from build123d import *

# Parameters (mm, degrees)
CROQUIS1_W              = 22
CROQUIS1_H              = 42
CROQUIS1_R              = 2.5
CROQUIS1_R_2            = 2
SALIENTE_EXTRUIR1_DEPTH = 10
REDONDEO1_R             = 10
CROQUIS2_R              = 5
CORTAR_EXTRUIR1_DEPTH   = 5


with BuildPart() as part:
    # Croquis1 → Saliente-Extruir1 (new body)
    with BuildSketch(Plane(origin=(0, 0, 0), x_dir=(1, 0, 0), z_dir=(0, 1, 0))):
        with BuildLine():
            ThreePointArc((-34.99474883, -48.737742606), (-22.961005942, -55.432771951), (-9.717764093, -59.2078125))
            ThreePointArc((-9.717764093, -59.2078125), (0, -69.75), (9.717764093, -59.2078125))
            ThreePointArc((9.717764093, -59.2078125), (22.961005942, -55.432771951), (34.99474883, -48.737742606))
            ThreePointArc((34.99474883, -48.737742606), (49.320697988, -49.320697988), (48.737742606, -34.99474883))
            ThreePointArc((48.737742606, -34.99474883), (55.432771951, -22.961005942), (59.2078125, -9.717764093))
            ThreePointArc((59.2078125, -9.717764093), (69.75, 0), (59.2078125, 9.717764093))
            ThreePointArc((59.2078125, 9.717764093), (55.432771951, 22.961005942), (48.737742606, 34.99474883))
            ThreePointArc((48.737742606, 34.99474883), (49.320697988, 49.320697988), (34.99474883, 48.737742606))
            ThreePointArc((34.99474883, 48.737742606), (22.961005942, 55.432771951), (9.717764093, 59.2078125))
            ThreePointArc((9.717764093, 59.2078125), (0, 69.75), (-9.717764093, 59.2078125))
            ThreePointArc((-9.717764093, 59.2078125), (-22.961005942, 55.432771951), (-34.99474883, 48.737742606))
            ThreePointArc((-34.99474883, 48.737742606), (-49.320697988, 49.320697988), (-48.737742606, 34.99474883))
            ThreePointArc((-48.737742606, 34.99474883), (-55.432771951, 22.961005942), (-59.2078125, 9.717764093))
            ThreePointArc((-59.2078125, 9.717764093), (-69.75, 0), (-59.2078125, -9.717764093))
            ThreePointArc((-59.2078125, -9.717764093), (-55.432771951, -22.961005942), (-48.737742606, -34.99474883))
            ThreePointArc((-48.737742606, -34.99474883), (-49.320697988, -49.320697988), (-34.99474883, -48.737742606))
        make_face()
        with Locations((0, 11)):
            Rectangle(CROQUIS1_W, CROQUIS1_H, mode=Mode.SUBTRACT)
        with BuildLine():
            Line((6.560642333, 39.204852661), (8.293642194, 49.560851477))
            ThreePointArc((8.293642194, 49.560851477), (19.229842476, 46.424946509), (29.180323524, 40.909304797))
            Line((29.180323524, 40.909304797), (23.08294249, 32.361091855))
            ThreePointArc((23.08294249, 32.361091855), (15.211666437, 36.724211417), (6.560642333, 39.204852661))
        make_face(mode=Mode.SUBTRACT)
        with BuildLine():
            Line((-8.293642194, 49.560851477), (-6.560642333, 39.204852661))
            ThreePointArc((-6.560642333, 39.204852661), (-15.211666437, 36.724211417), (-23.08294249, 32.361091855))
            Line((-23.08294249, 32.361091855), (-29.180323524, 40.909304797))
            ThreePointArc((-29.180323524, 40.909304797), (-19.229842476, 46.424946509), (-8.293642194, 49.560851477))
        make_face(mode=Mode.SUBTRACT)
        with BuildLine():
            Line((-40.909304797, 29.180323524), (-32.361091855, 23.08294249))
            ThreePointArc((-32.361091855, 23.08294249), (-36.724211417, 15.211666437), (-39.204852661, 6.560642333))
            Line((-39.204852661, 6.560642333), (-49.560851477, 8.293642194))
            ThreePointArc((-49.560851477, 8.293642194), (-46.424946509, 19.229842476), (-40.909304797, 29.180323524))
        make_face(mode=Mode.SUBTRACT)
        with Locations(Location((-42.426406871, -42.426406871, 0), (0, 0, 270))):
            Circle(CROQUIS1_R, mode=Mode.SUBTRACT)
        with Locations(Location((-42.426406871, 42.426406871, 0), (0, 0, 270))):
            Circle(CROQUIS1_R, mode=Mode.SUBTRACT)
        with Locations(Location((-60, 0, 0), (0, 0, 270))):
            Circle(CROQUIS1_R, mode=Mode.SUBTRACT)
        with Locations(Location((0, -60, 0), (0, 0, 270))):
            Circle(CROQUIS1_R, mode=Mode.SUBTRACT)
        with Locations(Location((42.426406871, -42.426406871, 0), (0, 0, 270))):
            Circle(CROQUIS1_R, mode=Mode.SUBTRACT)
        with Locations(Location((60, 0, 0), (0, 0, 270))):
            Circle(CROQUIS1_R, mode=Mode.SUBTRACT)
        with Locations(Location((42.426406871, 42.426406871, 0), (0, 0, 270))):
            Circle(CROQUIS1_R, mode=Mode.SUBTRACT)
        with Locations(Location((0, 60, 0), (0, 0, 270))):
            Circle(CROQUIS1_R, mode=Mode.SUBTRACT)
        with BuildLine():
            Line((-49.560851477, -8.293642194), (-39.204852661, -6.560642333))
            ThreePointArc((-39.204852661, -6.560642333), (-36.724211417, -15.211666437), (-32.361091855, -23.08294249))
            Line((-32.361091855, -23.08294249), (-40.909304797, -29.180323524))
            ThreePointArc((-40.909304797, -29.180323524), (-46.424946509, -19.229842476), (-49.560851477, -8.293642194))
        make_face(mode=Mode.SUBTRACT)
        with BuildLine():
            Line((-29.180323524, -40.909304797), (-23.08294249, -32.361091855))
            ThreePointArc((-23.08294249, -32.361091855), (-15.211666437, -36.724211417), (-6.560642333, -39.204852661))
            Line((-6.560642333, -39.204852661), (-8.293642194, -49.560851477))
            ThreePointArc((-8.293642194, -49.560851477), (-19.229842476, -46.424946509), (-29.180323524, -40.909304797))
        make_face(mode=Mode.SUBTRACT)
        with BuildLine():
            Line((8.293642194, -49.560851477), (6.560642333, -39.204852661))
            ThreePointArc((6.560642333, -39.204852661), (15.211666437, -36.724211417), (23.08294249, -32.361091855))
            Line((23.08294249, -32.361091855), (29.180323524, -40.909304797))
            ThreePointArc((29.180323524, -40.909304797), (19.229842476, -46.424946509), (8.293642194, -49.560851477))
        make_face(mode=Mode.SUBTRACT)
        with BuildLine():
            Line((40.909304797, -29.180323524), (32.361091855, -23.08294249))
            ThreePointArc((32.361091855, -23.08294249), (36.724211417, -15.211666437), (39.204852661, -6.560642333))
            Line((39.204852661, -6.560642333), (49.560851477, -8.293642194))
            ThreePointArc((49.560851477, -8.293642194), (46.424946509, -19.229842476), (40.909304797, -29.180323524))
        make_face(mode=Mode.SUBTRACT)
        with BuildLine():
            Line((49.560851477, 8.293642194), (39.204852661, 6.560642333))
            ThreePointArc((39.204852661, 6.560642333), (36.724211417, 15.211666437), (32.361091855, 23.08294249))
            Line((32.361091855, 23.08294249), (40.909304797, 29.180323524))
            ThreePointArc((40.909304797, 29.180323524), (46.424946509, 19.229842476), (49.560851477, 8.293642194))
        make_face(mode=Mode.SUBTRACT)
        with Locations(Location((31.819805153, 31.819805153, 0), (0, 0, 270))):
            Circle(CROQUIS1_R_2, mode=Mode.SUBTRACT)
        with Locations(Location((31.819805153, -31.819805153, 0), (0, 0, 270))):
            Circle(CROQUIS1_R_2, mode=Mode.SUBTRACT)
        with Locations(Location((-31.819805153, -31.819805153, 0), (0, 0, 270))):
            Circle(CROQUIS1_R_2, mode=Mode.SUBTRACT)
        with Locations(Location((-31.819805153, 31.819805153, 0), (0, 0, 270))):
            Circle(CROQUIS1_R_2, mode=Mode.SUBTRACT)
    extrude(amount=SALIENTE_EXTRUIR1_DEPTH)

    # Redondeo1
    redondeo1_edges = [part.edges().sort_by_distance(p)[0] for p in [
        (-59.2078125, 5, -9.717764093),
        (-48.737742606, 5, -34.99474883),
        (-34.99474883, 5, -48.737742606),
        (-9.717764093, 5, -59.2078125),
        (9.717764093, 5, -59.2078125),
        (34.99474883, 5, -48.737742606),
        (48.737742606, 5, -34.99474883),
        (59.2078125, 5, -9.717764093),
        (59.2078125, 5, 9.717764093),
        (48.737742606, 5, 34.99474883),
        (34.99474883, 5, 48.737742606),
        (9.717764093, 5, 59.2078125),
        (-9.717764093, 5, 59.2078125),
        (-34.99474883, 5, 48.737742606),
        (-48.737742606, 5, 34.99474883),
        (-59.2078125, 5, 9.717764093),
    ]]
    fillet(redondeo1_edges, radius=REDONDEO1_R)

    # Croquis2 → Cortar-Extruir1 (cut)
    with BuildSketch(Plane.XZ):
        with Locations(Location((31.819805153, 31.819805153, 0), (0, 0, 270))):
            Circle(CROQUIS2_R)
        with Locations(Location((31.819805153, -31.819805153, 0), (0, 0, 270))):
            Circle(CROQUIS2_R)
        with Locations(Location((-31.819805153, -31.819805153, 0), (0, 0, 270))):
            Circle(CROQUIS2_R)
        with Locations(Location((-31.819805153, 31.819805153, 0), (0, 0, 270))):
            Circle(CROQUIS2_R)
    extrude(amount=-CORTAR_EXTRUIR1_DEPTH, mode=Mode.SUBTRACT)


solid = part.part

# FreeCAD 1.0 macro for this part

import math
import FreeCAD as App
import Part
import Sketcher
Q = App.Units.Quantity


def edges_at(feature, points):
    """Names of the edges that pass closest to the given points."""
    edges = feature.Shape.Edges
    near = lambda p: min(range(len(edges)), key=lambda i: edges[i].distToShape(Part.Vertex(*p))[0])
    return sorted({f"Edge{near(p) + 1}" for p in points})

doc = App.newDocument("Part")
body = doc.addObject("PartDesign::Body", "Body")

# Sketch on XZ plane
sketch1 = body.newObject("Sketcher::SketchObject", "Sketch")
sketch1.AttachmentSupport = (doc.getObject("XZ_Plane"), [""])
sketch1.MapMode = "FlatFace"
sketch1.addGeometry([
    Part.ArcOfCircle(Part.Circle(App.Vector(0, 0, 0), App.Vector(0, 0, 1), 60), math.radians(99), math.radians(126)),  # 0
    Part.ArcOfCircle(Part.Circle(App.Vector(0, 60, 0), App.Vector(0, 0, 1), 9.8), math.radians(-5), math.radians(185)),  # 1
    Part.ArcOfCircle(Part.Circle(App.Vector(0, 0, 0), App.Vector(0, 0, 1), 60), math.radians(54), math.radians(81)),  # 2
    Part.ArcOfCircle(Part.Circle(App.Vector(42.4, 42.4, 0), App.Vector(0, 0, 1), 9.8), math.radians(-50), math.radians(140)),  # 3
    Part.ArcOfCircle(Part.Circle(App.Vector(0, 0, 0), App.Vector(0, 0, 1), 60), math.radians(9), math.radians(36)),  # 4
    Part.ArcOfCircle(Part.Circle(App.Vector(60, 0, 0), App.Vector(0, 0, 1), 9.8), math.radians(-95), math.radians(95)),  # 5
    Part.ArcOfCircle(Part.Circle(App.Vector(0, 0, 0), App.Vector(0, 0, 1), 60), math.radians(-36), math.radians(-9)),  # 6
    Part.ArcOfCircle(Part.Circle(App.Vector(42.4, -42.4, 0), App.Vector(0, 0, 1), 9.8), math.radians(-140), math.radians(50)),  # 7
    Part.ArcOfCircle(Part.Circle(App.Vector(0, 0, 0), App.Vector(0, 0, 1), 60), math.radians(-81), math.radians(-54)),  # 8
    Part.ArcOfCircle(Part.Circle(App.Vector(0, -60, 0), App.Vector(0, 0, 1), 9.8), math.radians(175), math.radians(365)),  # 9
    Part.ArcOfCircle(Part.Circle(App.Vector(0, 0, 0), App.Vector(0, 0, 1), 60), math.radians(-126), math.radians(-99)),  # 10
    Part.ArcOfCircle(Part.Circle(App.Vector(-42.4, -42.4, 0), App.Vector(0, 0, 1), 9.8), math.radians(130), math.radians(320)),  # 11
    Part.ArcOfCircle(Part.Circle(App.Vector(0, 0, 0), App.Vector(0, 0, 1), 60), math.radians(-171), math.radians(-144)),  # 12
    Part.ArcOfCircle(Part.Circle(App.Vector(-60, 0, 0), App.Vector(0, 0, 1), 9.8), math.radians(85), math.radians(275)),  # 13
    Part.ArcOfCircle(Part.Circle(App.Vector(0, 0, 0), App.Vector(0, 0, 1), 60), math.radians(144), math.radians(171)),  # 14
    Part.ArcOfCircle(Part.Circle(App.Vector(-42.4, 42.4, 0), App.Vector(0, 0, 1), 9.8), math.radians(40), math.radians(230)),  # 15
    Part.Circle(App.Vector(-42.4, 42.4, 0), App.Vector(0, 0, 1), 2.5),  # 16
    Part.Circle(App.Vector(-31.8, 31.8, 0), App.Vector(0, 0, 1), 2),  # 17
    Part.ArcOfCircle(Part.Circle(App.Vector(0, 0, 0), App.Vector(0, 0, 1), 50.2), math.radians(99), math.radians(126)),  # 18
    Part.LineSegment(App.Vector(-29.2, 40.9, 0), App.Vector(-23.1, 32.4, 0)),  # 19
    Part.ArcOfCircle(Part.Circle(App.Vector(0, 0, 0), App.Vector(0, 0, 1), 39.8), math.radians(100), math.radians(125)),  # 20
    Part.LineSegment(App.Vector(-6.6, 39.2, 0), App.Vector(-8.3, 49.6, 0)),  # 21
    Part.ArcOfCircle(Part.Circle(App.Vector(0, 0, 0), App.Vector(0, 0, 1), 50.2), math.radians(144), math.radians(171)),  # 22
    Part.LineSegment(App.Vector(-49.6, 8.3, 0), App.Vector(-39.2, 6.6, 0)),  # 23
    Part.ArcOfCircle(Part.Circle(App.Vector(0, 0, 0), App.Vector(0, 0, 1), 39.8), math.radians(145), math.radians(170)),  # 24
    Part.LineSegment(App.Vector(-32.4, 23.1, 0), App.Vector(-40.9, 29.2, 0)),  # 25
    Part.Circle(App.Vector(0, 60, 0), App.Vector(0, 0, 1), 2.5),  # 26
    Part.ArcOfCircle(Part.Circle(App.Vector(0, 0, 0), App.Vector(0, 0, 1), 50.2), math.radians(54), math.radians(81)),  # 27
    Part.LineSegment(App.Vector(8.3, 49.6, 0), App.Vector(6.6, 39.2, 0)),  # 28
    Part.ArcOfCircle(Part.Circle(App.Vector(0, 0, 0), App.Vector(0, 0, 1), 39.8), math.radians(55), math.radians(80)),  # 29
    Part.LineSegment(App.Vector(23.1, 32.4, 0), App.Vector(29.2, 40.9, 0)),  # 30
    Part.Circle(App.Vector(42.4, 42.4, 0), App.Vector(0, 0, 1), 2.5),  # 31
    Part.Circle(App.Vector(31.8, 31.8, 0), App.Vector(0, 0, 1), 2),  # 32
    Part.ArcOfCircle(Part.Circle(App.Vector(0, 0, 0), App.Vector(0, 0, 1), 50.2), math.radians(9), math.radians(36)),  # 33
    Part.LineSegment(App.Vector(40.9, 29.2, 0), App.Vector(32.4, 23.1, 0)),  # 34
    Part.ArcOfCircle(Part.Circle(App.Vector(0, 0, 0), App.Vector(0, 0, 1), 39.8), math.radians(10), math.radians(35)),  # 35
    Part.LineSegment(App.Vector(39.2, 6.6, 0), App.Vector(49.6, 8.3, 0)),  # 36
    Part.Circle(App.Vector(-60, 0, 0), App.Vector(0, 0, 1), 2.5),  # 37
    Part.ArcOfCircle(Part.Circle(App.Vector(0, 0, 0), App.Vector(0, 0, 1), 50.2), math.radians(-171), math.radians(-144)),  # 38
    Part.LineSegment(App.Vector(-40.9, -29.2, 0), App.Vector(-32.4, -23.1, 0)),  # 39
    Part.ArcOfCircle(Part.Circle(App.Vector(0, 0, 0), App.Vector(0, 0, 1), 39.8), math.radians(-170), math.radians(-145)),  # 40
    Part.LineSegment(App.Vector(-39.2, -6.6, 0), App.Vector(-49.6, -8.3, 0)),  # 41
    Part.Circle(App.Vector(-31.8, -31.8, 0), App.Vector(0, 0, 1), 2),  # 42
    Part.Circle(App.Vector(-42.4, -42.4, 0), App.Vector(0, 0, 1), 2.5),  # 43
    Part.ArcOfCircle(Part.Circle(App.Vector(0, 0, 0), App.Vector(0, 0, 1), 50.2), math.radians(-126), math.radians(-99)),  # 44
    Part.LineSegment(App.Vector(-8.3, -49.6, 0), App.Vector(-6.6, -39.2, 0)),  # 45
    Part.ArcOfCircle(Part.Circle(App.Vector(0, 0, 0), App.Vector(0, 0, 1), 39.8), math.radians(-125), math.radians(-100)),  # 46
    Part.LineSegment(App.Vector(-23.1, -32.4, 0), App.Vector(-29.2, -40.9, 0)),  # 47
    Part.LineSegment(App.Vector(11, 10, 0), App.Vector(-11, 10, 0)),  # 48
    Part.LineSegment(App.Vector(-11, 10, 0), App.Vector(-11, -32, 0)),  # 49
    Part.LineSegment(App.Vector(-11, -32, 0), App.Vector(11, -32, 0)),  # 50
    Part.LineSegment(App.Vector(11, -32, 0), App.Vector(11, 10, 0)),  # 51
    Part.Circle(App.Vector(60, 0, 0), App.Vector(0, 0, 1), 2.5),  # 52
    Part.ArcOfCircle(Part.Circle(App.Vector(0, 0, 0), App.Vector(0, 0, 1), 50.2), math.radians(-36), math.radians(-9)),  # 53
    Part.LineSegment(App.Vector(49.6, -8.3, 0), App.Vector(39.2, -6.6, 0)),  # 54
    Part.ArcOfCircle(Part.Circle(App.Vector(0, 0, 0), App.Vector(0, 0, 1), 39.8), math.radians(-35), math.radians(-10)),  # 55
    Part.LineSegment(App.Vector(32.4, -23.1, 0), App.Vector(40.9, -29.2, 0)),  # 56
    Part.ArcOfCircle(Part.Circle(App.Vector(0, 0, 0), App.Vector(0, 0, 1), 39.8), math.radians(-80), math.radians(-55)),  # 57
    Part.LineSegment(App.Vector(6.6, -39.2, 0), App.Vector(8.3, -49.6, 0)),  # 58
    Part.ArcOfCircle(Part.Circle(App.Vector(0, 0, 0), App.Vector(0, 0, 1), 50.2), math.radians(-81), math.radians(-54)),  # 59
    Part.LineSegment(App.Vector(29.2, -40.9, 0), App.Vector(23.1, -32.4, 0)),  # 60
    Part.Circle(App.Vector(0, -60, 0), App.Vector(0, 0, 1), 2.5),  # 61
    Part.Circle(App.Vector(31.8, -31.8, 0), App.Vector(0, 0, 1), 2),  # 62
    Part.Circle(App.Vector(42.4, -42.4, 0), App.Vector(0, 0, 1), 2.5),  # 63
], False)
sketch1.addConstraint([
    Sketcher.Constraint("Coincident", 0, 1, 1, 2),
    Sketcher.Constraint("Coincident", 1, 1, 2, 2),
    Sketcher.Constraint("Coincident", 2, 1, 3, 2),
    Sketcher.Constraint("Coincident", 3, 1, 4, 2),
    Sketcher.Constraint("Coincident", 4, 1, 5, 2),
    Sketcher.Constraint("Coincident", 5, 1, 6, 2),
    Sketcher.Constraint("Coincident", 6, 1, 7, 2),
    Sketcher.Constraint("Coincident", 7, 1, 8, 2),
    Sketcher.Constraint("Coincident", 8, 1, 9, 2),
    Sketcher.Constraint("Coincident", 9, 1, 10, 2),
    Sketcher.Constraint("Coincident", 10, 1, 11, 2),
    Sketcher.Constraint("Coincident", 11, 1, 12, 2),
    Sketcher.Constraint("Coincident", 12, 1, 13, 2),
    Sketcher.Constraint("Coincident", 13, 1, 14, 2),
    Sketcher.Constraint("Coincident", 14, 1, 15, 2),
    Sketcher.Constraint("Coincident", 15, 1, 0, 2),
    Sketcher.Constraint("Coincident", 18, 2, 19, 1),
    Sketcher.Constraint("Coincident", 19, 2, 20, 2),
    Sketcher.Constraint("Coincident", 20, 1, 21, 1),
    Sketcher.Constraint("Coincident", 21, 2, 18, 1),
    Sketcher.Constraint("Coincident", 22, 2, 23, 1),
    Sketcher.Constraint("Coincident", 23, 2, 24, 2),
    Sketcher.Constraint("Coincident", 24, 1, 25, 1),
    Sketcher.Constraint("Coincident", 25, 2, 22, 1),
    Sketcher.Constraint("Coincident", 27, 2, 28, 1),
    Sketcher.Constraint("Coincident", 28, 2, 29, 2),
    Sketcher.Constraint("Coincident", 29, 1, 30, 1),
    Sketcher.Constraint("Coincident", 30, 2, 27, 1),
    Sketcher.Constraint("Coincident", 33, 2, 34, 1),
    Sketcher.Constraint("Coincident", 34, 2, 35, 2),
    Sketcher.Constraint("Coincident", 35, 1, 36, 1),
    Sketcher.Constraint("Coincident", 36, 2, 33, 1),
    Sketcher.Constraint("Coincident", 38, 2, 39, 1),
    Sketcher.Constraint("Coincident", 39, 2, 40, 2),
    Sketcher.Constraint("Coincident", 40, 1, 41, 1),
    Sketcher.Constraint("Coincident", 41, 2, 38, 1),
    Sketcher.Constraint("Coincident", 44, 2, 45, 1),
    Sketcher.Constraint("Coincident", 45, 2, 46, 2),
    Sketcher.Constraint("Coincident", 46, 1, 47, 1),
    Sketcher.Constraint("Coincident", 47, 2, 44, 1),
    Sketcher.Constraint("Coincident", 48, 2, 49, 1),
    Sketcher.Constraint("Coincident", 49, 2, 50, 1),
    Sketcher.Constraint("Coincident", 50, 2, 51, 1),
    Sketcher.Constraint("Coincident", 51, 2, 48, 1),
    Sketcher.Constraint("Coincident", 53, 2, 54, 1),
    Sketcher.Constraint("Coincident", 54, 2, 55, 2),
    Sketcher.Constraint("Coincident", 55, 1, 56, 1),
    Sketcher.Constraint("Coincident", 56, 2, 53, 1),
    Sketcher.Constraint("Coincident", 57, 1, 58, 1),
    Sketcher.Constraint("Coincident", 58, 2, 59, 1),
    Sketcher.Constraint("Coincident", 59, 2, 60, 1),
    Sketcher.Constraint("Coincident", 60, 2, 57, 2),
    Sketcher.Constraint("Horizontal", 48),
    Sketcher.Constraint("Vertical", 49),
    Sketcher.Constraint("Horizontal", 50),
    Sketcher.Constraint("Vertical", 51),
    Sketcher.Constraint("Coincident", 0, 3, -1, 1),
    Sketcher.Constraint("Coincident", 2, 3, -1, 1),
    Sketcher.Constraint("Coincident", 4, 3, -1, 1),
    Sketcher.Constraint("Coincident", 6, 3, -1, 1),
    Sketcher.Constraint("Coincident", 8, 3, -1, 1),
    Sketcher.Constraint("Coincident", 10, 3, -1, 1),
    Sketcher.Constraint("Coincident", 12, 3, -1, 1),
    Sketcher.Constraint("Coincident", 14, 3, -1, 1),
    Sketcher.Constraint("Coincident", 18, 3, -1, 1),
    Sketcher.Constraint("Coincident", 20, 3, -1, 1),
    Sketcher.Constraint("Coincident", 22, 3, -1, 1),
    Sketcher.Constraint("Coincident", 24, 3, -1, 1),
    Sketcher.Constraint("Coincident", 27, 3, -1, 1),
    Sketcher.Constraint("Coincident", 29, 3, -1, 1),
    Sketcher.Constraint("Coincident", 33, 3, -1, 1),
    Sketcher.Constraint("Coincident", 35, 3, -1, 1),
    Sketcher.Constraint("Coincident", 38, 3, -1, 1),
    Sketcher.Constraint("Coincident", 40, 3, -1, 1),
    Sketcher.Constraint("Coincident", 44, 3, -1, 1),
    Sketcher.Constraint("Coincident", 46, 3, -1, 1),
    Sketcher.Constraint("Coincident", 53, 3, -1, 1),
    Sketcher.Constraint("Coincident", 55, 3, -1, 1),
    Sketcher.Constraint("Coincident", 57, 3, -1, 1),
    Sketcher.Constraint("Coincident", 59, 3, -1, 1),
    Sketcher.Constraint("Coincident", 16, 3, 15, 3),
    Sketcher.Constraint("Coincident", 26, 3, 1, 3),
    Sketcher.Constraint("Coincident", 31, 3, 3, 3),
    Sketcher.Constraint("Coincident", 37, 3, 13, 3),
    Sketcher.Constraint("Coincident", 43, 3, 11, 3),
    Sketcher.Constraint("Coincident", 52, 3, 5, 3),
    Sketcher.Constraint("Coincident", 61, 3, 9, 3),
    Sketcher.Constraint("Coincident", 63, 3, 7, 3),
    Sketcher.Constraint("Equal", 0, 2),
    Sketcher.Constraint("Equal", 1, 3),
    Sketcher.Constraint("Equal", 2, 4),
    Sketcher.Constraint("Equal", 3, 5),
    Sketcher.Constraint("Equal", 4, 6),
    Sketcher.Constraint("Equal", 5, 7),
    Sketcher.Constraint("Equal", 6, 8),
    Sketcher.Constraint("Equal", 7, 9),
    Sketcher.Constraint("Equal", 8, 10),
    Sketcher.Constraint("Equal", 9, 11),
    Sketcher.Constraint("Equal", 10, 12),
    Sketcher.Constraint("Equal", 11, 13),
    Sketcher.Constraint("Equal", 12, 14),
    Sketcher.Constraint("Equal", 13, 15),
    Sketcher.Constraint("Equal", 18, 22),
    Sketcher.Constraint("Equal", 20, 24),
    Sketcher.Constraint("Equal", 16, 26),
    Sketcher.Constraint("Equal", 22, 27),
    Sketcher.Constraint("Equal", 24, 29),
    Sketcher.Constraint("Equal", 26, 31),
    Sketcher.Constraint("Equal", 17, 32),
    Sketcher.Constraint("Equal", 27, 33),
    Sketcher.Constraint("Equal", 29, 35),
    Sketcher.Constraint("Equal", 31, 37),
    Sketcher.Constraint("Equal", 33, 38),
    Sketcher.Constraint("Equal", 35, 40),
    Sketcher.Constraint("Equal", 32, 42),
    Sketcher.Constraint("Equal", 37, 43),
    Sketcher.Constraint("Equal", 38, 44),
    Sketcher.Constraint("Equal", 40, 46),
    Sketcher.Constraint("Equal", 43, 52),
    Sketcher.Constraint("Equal", 44, 53),
    Sketcher.Constraint("Equal", 46, 55),
    Sketcher.Constraint("Equal", 55, 57),
    Sketcher.Constraint("Equal", 53, 59),
    Sketcher.Constraint("Equal", 52, 61),
    Sketcher.Constraint("Equal", 42, 62),
    Sketcher.Constraint("Equal", 61, 63),
    Sketcher.Constraint("Symmetric", 1, 3, 9, 3, -1, 1),
    Sketcher.Constraint("Symmetric", 3, 3, 11, 3, -1, 1),
    Sketcher.Constraint("Symmetric", 5, 3, 13, 3, -1, 1),
    Sketcher.Constraint("Symmetric", 7, 3, 15, 3, -1, 1),
    Sketcher.Constraint("Symmetric", 32, 3, 42, 3, -1, 1),
    Sketcher.Constraint("Symmetric", 17, 3, 62, 3, -1, 1),
    Sketcher.Constraint("Symmetric", 7, 3, 11, 3, -2),
    Sketcher.Constraint("Symmetric", 17, 3, 32, 3, -2),
    Sketcher.Constraint("PointOnObject", 1, 3, -2),
    Sketcher.Constraint("PointOnObject", 5, 3, -1),
    Sketcher.Constraint("Perpendicular", 23, 28),
    Sketcher.Constraint("Perpendicular", 25, 30),
    Sketcher.Constraint("Perpendicular", 19, 34),
    Sketcher.Constraint("Perpendicular", 21, 36),
    Sketcher.Constraint("Parallel", 34, 39),
    Sketcher.Constraint("Parallel", 36, 41),
    Sketcher.Constraint("Parallel", 28, 45),
    Sketcher.Constraint("Parallel", 30, 47),
    Sketcher.Constraint("Perpendicular", 45, 54),
    Sketcher.Constraint("Perpendicular", 47, 56),
    Sketcher.Constraint("Perpendicular", 41, 58),
    Sketcher.Constraint("Perpendicular", 39, 60),
    Sketcher.Constraint("Horizontal", 21, 2, 27, 2),
    Sketcher.Constraint("Horizontal", 20, 1, 28, 2),
    Sketcher.Constraint("Horizontal", 19, 2, 29, 1),
    Sketcher.Constraint("Horizontal", 18, 2, 30, 2),
    Sketcher.Constraint("Horizontal", 25, 2, 33, 2),
    Sketcher.Constraint("Horizontal", 23, 2, 35, 1),
    Sketcher.Constraint("Horizontal", 41, 2, 53, 2),
    Sketcher.Constraint("Horizontal", 39, 2, 55, 1),
    Sketcher.Constraint("Horizontal", 45, 2, 57, 1),
    Sketcher.Constraint("Horizontal", 47, 2, 59, 2),
    Sketcher.Constraint("Vertical", 25, 2, 38, 2),
    Sketcher.Constraint("Vertical", 23, 2, 40, 1),
    Sketcher.Constraint("Vertical", 21, 2, 44, 2),
    Sketcher.Constraint("Vertical", 19, 2, 46, 1),
    Sketcher.Constraint("Diameter", 16, 5.0),
    Sketcher.Constraint("Diameter", 17, 4.0),
    Sketcher.Constraint("Radius", 0, 60.0),
    Sketcher.Constraint("DistanceX", 48, 2, 48, 1, 22.0),
    Sketcher.Constraint("DistanceY", 49, 2, 49, 1, 42.0),
    Sketcher.Constraint("Radius", 1, 9.75),
    Sketcher.Constraint("Radius", 18, 50.25),
    Sketcher.Constraint("Radius", 20, 39.75),
    Sketcher.Constraint("DistanceY", -1, 1, 1, 3, 60.0),
    Sketcher.Constraint("DistanceX", -1, 1, 5, 3, 60.0),
    Sketcher.Constraint("DistanceX", 48, 2, -1, 1, 11.0),
    Sketcher.Constraint("DistanceY", -1, 1, 48, 2, 10.0),
    Sketcher.Constraint("Angle", 19, Q("-54.5 deg")),
    Sketcher.Constraint("Angle", 21, Q("99.5 deg")),
    Sketcher.Constraint("DistanceX", -1, 1, 2, 1, 34.994749),
    Sketcher.Constraint("DistanceY", -1, 1, 3, 1, 34.994749),
    Sketcher.Constraint("DistanceY", -1, 1, 19, 2, 32.361092),
    Sketcher.Constraint("DistanceY", -1, 1, 21, 2, 49.560851),
    Sketcher.Constraint("DistanceX", 22, 2, -1, 1, 49.560851),
    Sketcher.Constraint("DistanceX", 24, 1, -1, 1, 32.361092),
    Sketcher.Constraint("DistanceX", 17, 3, -1, 1, 31.819805),
    Sketcher.Constraint("DistanceY", -1, 1, 17, 3, 31.819805),
])
pad1 = body.newObject("PartDesign::Pad", "Pad")
pad1.Profile = sketch1
pad1.Length = 10
pad1.Reversed = True
doc.recompute()

fillet = body.newObject("PartDesign::Fillet", "Fillet")
fillet.Base = (pad1, edges_at(pad1, [
    (-59.208, 5, -9.718),
    (-48.738, 5, -34.995),
    (-34.995, 5, -48.738),
    (-9.718, 5, -59.208),
    (9.718, 5, -59.208),
    (34.995, 5, -48.738),
    (48.738, 5, -34.995),
    (59.208, 5, -9.718),
    (59.208, 5, 9.718),
    (48.738, 5, 34.995),
    (34.995, 5, 48.738),
    (9.718, 5, 59.208),
    (-9.718, 5, 59.208),
    (-34.995, 5, 48.738),
    (-48.738, 5, 34.995),
    (-59.208, 5, 9.718),
]))
fillet.Radius = 10

# Sketch on XZ plane
sketch2 = body.newObject("Sketcher::SketchObject", "Sketch001")
sketch2.AttachmentSupport = (doc.getObject("XZ_Plane"), [""])
sketch2.MapMode = "FlatFace"
sketch2.addGeometry([
    Part.Circle(App.Vector(32, 32, 0), App.Vector(0, 0, 1), 5),
    Part.Circle(App.Vector(32, -32, 0), App.Vector(0, 0, 1), 5),
    Part.Circle(App.Vector(-32, -32, 0), App.Vector(0, 0, 1), 5),
    Part.Circle(App.Vector(-32, 32, 0), App.Vector(0, 0, 1), 5),
], False)
sketch2.addConstraint([
    Sketcher.Constraint("Equal", 0, 1),
    Sketcher.Constraint("Equal", 1, 2),
    Sketcher.Constraint("Equal", 2, 3),
    Sketcher.Constraint("Symmetric", 0, 3, 2, 3, -1, 1),
    Sketcher.Constraint("Symmetric", 1, 3, 3, 3, -1, 1),
    Sketcher.Constraint("Symmetric", 1, 3, 2, 3, -2),
    Sketcher.Constraint("Diameter", 0, 10.0),
    Sketcher.Constraint("DistanceY", 1, 3, 0, 3, 63.63961),
    Sketcher.Constraint("DistanceX", 2, 3, 1, 3, 63.63961),
])
pocket1 = body.newObject("PartDesign::Pocket", "Pocket")
pocket1.Profile = sketch2
pocket1.Length = 5

doc.recompute()
